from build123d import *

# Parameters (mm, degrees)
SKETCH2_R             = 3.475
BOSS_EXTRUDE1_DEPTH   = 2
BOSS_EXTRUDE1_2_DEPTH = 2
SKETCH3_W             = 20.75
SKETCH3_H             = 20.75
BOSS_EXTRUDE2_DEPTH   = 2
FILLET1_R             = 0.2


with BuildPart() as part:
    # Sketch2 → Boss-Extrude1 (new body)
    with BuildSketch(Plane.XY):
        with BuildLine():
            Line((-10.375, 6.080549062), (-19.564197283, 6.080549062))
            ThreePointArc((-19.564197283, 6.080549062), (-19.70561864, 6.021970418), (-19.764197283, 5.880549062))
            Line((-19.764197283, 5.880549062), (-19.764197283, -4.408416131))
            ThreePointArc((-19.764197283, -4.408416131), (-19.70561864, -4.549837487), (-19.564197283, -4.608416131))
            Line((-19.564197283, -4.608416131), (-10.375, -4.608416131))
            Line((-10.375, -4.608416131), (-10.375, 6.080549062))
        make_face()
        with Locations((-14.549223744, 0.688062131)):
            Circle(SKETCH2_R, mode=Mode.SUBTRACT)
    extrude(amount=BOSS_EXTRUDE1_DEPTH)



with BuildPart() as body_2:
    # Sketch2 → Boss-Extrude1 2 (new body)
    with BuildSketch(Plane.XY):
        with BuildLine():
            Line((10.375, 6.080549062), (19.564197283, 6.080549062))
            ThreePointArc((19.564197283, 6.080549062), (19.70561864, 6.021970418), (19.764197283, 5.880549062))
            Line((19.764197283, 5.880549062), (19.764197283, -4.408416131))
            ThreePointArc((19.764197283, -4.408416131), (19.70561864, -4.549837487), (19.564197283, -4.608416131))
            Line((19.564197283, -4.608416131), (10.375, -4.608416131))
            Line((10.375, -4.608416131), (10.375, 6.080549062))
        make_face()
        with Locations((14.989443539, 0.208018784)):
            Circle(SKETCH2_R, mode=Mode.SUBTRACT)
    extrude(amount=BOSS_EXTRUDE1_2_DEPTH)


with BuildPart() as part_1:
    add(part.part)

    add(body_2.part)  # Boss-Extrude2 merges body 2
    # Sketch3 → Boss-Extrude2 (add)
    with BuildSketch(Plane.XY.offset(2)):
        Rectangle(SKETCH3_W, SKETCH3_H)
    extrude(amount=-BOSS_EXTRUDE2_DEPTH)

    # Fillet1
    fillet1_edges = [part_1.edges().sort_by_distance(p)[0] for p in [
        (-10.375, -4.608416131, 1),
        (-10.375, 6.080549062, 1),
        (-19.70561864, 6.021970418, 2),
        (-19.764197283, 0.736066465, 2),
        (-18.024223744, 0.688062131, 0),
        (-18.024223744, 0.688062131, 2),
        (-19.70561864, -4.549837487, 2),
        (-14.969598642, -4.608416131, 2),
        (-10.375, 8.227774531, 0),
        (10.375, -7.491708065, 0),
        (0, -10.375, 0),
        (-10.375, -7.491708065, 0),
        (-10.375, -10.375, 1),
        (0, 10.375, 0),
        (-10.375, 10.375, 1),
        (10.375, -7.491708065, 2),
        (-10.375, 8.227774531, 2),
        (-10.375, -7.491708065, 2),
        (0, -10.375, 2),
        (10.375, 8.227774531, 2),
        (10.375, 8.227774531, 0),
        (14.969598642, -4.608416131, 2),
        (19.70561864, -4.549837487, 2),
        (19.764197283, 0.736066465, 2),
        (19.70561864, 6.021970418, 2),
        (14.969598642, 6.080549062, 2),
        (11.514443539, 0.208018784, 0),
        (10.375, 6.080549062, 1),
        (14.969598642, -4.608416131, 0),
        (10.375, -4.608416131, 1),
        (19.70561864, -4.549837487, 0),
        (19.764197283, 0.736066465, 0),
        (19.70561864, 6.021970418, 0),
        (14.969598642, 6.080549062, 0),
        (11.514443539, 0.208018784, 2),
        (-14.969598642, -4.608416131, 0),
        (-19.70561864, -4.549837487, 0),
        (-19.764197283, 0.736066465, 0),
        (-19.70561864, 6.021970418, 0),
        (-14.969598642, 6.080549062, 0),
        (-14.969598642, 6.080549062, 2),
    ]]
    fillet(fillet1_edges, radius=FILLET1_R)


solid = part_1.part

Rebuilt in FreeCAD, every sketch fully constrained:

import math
import FreeCAD as App
import Part
import Sketcher

V = App.Vector
Q = App.Units.Quantity


def edges_at(feature, points):
    """Names of the edges that pass closest to the given points."""
    edges = feature.Shape.Edges
    near = lambda p: min(range(len(edges)), key=lambda i: edges[i].distToShape(Part.Vertex(*p))[0])
    return sorted({f"Edge{near(p) + 1}" for p in points})

doc = App.newDocument("Part")
body = doc.addObject("PartDesign::Body", "Body")

# Sketch on XY plane
sketch1 = doc.addObject("Sketcher::SketchObject", "Sketch")
body.addObject(sketch1)
sketch1.AttachmentSupport = (doc.XY_Plane, [""])
sketch1.MapMode = "FlatFace"
sketch1.addGeometry([
    Part.LineSegment(V(-10.375, 6.080549, 0), V(-19.564197, 6.080549, 0)),  # 0
    Part.ArcOfCircle(Part.Circle(V(-19.564197, 5.880549, 0), V(0, 0, 1), 0.2), math.radians(90), math.radians(180)),  # 1
    Part.LineSegment(V(-19.764197, 5.880549, 0), V(-19.764197, -4.408416, 0)),  # 2
    Part.ArcOfCircle(Part.Circle(V(-19.564197, -4.408416, 0), V(0, 0, 1), 0.2), math.radians(180), math.radians(270)),  # 3
    Part.LineSegment(V(-19.564197, -4.608416, 0), V(-10.375, -4.608416, 0)),  # 4
    Part.LineSegment(V(-10.375, -4.608416, 0), V(-10.375, 6.080549, 0)),  # 5
    Part.Circle(V(-14.549224, 0.688062, 0), V(0, 0, 1), 3.475),  # 6
], False)
sketch1.addConstraint([
    Sketcher.Constraint("Tangent", 0, 2, 1, 1),
    Sketcher.Constraint("Tangent", 1, 2, 2, 1),
    Sketcher.Constraint("Tangent", 2, 2, 3, 1),
    Sketcher.Constraint("Tangent", 3, 2, 4, 1),
    Sketcher.Constraint("Coincident", 4, 2, 5, 1),
    Sketcher.Constraint("Coincident", 5, 2, 0, 1),
    Sketcher.Constraint("Horizontal", 0),
    Sketcher.Constraint("Vertical", 2),
    Sketcher.Constraint("Horizontal", 4),
    Sketcher.Constraint("Vertical", 5),
    Sketcher.Constraint("Equal", 1, 3),
    Sketcher.Constraint("Radius", 1, Q("0.2 mm")),
    Sketcher.Constraint("Diameter", 6, Q("6.95 mm")),
    Sketcher.Constraint("DistanceX", 4, 2, -1, 1, Q("10.375 mm")),
    Sketcher.Constraint("DistanceX", 0, 2, 0, 1, Q("9.189197 mm")),
    Sketcher.Constraint("DistanceY", 2, 2, 2, 1, Q("10.288965 mm")),
    Sketcher.Constraint("DistanceY", -1, 1, 1, 3, Q("5.880549 mm")),
    Sketcher.Constraint("DistanceY", 3, 3, 6, 3, Q("5.096478 mm")),
    Sketcher.Constraint("DistanceX", 6, 3, -1, 1, Q("14.549224 mm")),
])
pad1 = doc.addObject("PartDesign::Pad", "Pad")
body.addObject(pad1)
pad1.Profile = sketch1
pad1.Length = 2
body2 = doc.addObject("PartDesign::Body", "Body001")

# Sketch on XY plane
sketch2 = doc.addObject("Sketcher::SketchObject", "Sketch001")
body2.addObject(sketch2)
sketch2.AttachmentSupport = (doc.getObject("XY_Plane001"), [""])
sketch2.MapMode = "FlatFace"
sketch2.addGeometry([
    Part.LineSegment(V(19.564197, 6.080549, 0), V(10.375, 6.080549, 0)),  # 0
    Part.LineSegment(V(10.375, 6.080549, 0), V(10.375, -4.608416, 0)),  # 1
    Part.LineSegment(V(10.375, -4.608416, 0), V(19.564197, -4.608416, 0)),  # 2
    Part.ArcOfCircle(Part.Circle(V(19.564197, -4.408416, 0), V(0, 0, 1), 0.2), math.radians(-90), math.radians(0)),  # 3
    Part.LineSegment(V(19.764197, -4.408416, 0), V(19.764197, 5.880549, 0)),  # 4
    Part.ArcOfCircle(Part.Circle(V(19.564197, 5.880549, 0), V(0, 0, 1), 0.2), math.radians(0), math.radians(90)),  # 5
    Part.Circle(V(14.989444, 0.208019, 0), V(0, 0, 1), 3.475),  # 6
], False)
sketch2.addConstraint([
    Sketcher.Constraint("Coincident", 0, 2, 1, 1),
    Sketcher.Constraint("Coincident", 1, 2, 2, 1),
    Sketcher.Constraint("Tangent", 2, 2, 3, 1),
    Sketcher.Constraint("Tangent", 3, 2, 4, 1),
    Sketcher.Constraint("Tangent", 4, 2, 5, 1),
    Sketcher.Constraint("Tangent", 5, 2, 0, 1),
    Sketcher.Constraint("Horizontal", 0),
    Sketcher.Constraint("Vertical", 1),
    Sketcher.Constraint("Horizontal", 2),
    Sketcher.Constraint("Vertical", 4),
    Sketcher.Constraint("Equal", 3, 5),
    Sketcher.Constraint("Radius", 3, Q("0.2 mm")),
    Sketcher.Constraint("Diameter", 6, Q("6.95 mm")),
    Sketcher.Constraint("DistanceX", -1, 1, 0, 2, Q("10.375 mm")),
    Sketcher.Constraint("DistanceX", 0, 2, 0, 1, Q("9.189197 mm")),
    Sketcher.Constraint("DistanceY", 1, 2, 1, 1, Q("10.688965 mm")),
    Sketcher.Constraint("DistanceY", -1, 1, 5, 3, Q("5.880549 mm")),
    Sketcher.Constraint("DistanceY", -1, 1, 6, 3, Q("0.208019 mm")),
    Sketcher.Constraint("DistanceX", -1, 1, 6, 3, Q("14.989444 mm")),
])
pad2 = doc.addObject("PartDesign::Pad", "Pad001")
body2.addObject(pad2)
pad2.Profile = sketch2
pad2.Length = 2
body.AllowCompound = True
doc.recompute()

boolean = doc.addObject("PartDesign::Boolean", "Boolean")
body.addObject(boolean)
boolean.Type = "Fuse"
boolean.addObjects([body2])

# Sketch on XY plane
sketch3 = doc.addObject("Sketcher::SketchObject", "Sketch002")
body.addObject(sketch3)
sketch3.AttachmentSupport = (doc.XY_Plane, [""])
sketch3.MapMode = "FlatFace"
sketch3.AttachmentOffset = App.Placement(V(0, 0, 2), App.Rotation())
sketch3.addGeometry([
    Part.LineSegment(V(-10.375, 10.375, 0), V(-10.375, -10.375, 0)),
    Part.LineSegment(V(-10.375, -10.375, 0), V(10.375, -10.375, 0)),
    Part.LineSegment(V(10.375, -10.375, 0), V(10.375, 10.375, 0)),
    Part.LineSegment(V(10.375, 10.375, 0), V(-10.375, 10.375, 0)),
], False)
sketch3.addConstraint([
    Sketcher.Constraint("Coincident", 0, 2, 1, 1),
    Sketcher.Constraint("Coincident", 1, 2, 2, 1),
    Sketcher.Constraint("Coincident", 2, 2, 3, 1),
    Sketcher.Constraint("Coincident", 3, 2, 0, 1),
    Sketcher.Constraint("Vertical", 0),
    Sketcher.Constraint("Horizontal", 1),
    Sketcher.Constraint("Vertical", 2),
    Sketcher.Constraint("Horizontal", 3),
    Sketcher.Constraint("Symmetric", 0, 2, 2, 2, -1, 1),
    Sketcher.Constraint("Equal", 3, 0),
    Sketcher.Constraint("DistanceX", 1, 1, 1, 2, Q("20.75 mm")),
])
pad3 = doc.addObject("PartDesign::Pad", "Pad002")
body.addObject(pad3)
pad3.Profile = sketch3
pad3.Length = 2
pad3.Reversed = True
doc.recompute()

fillet = doc.addObject("PartDesign::Fillet", "Fillet")
body.addObject(fillet)
fillet.Base = (pad3, edges_at(pad3, [
    (-10.375, -4.608, 1),
    (-10.375, 6.081, 1),
    (-19.706, 6.022, 2),
    (-19.764, 0.736, 2),
    (-18.024, 0.688, 0),
    (-18.024, 0.688, 2),
    (-19.706, -4.55, 2),
    (-14.97, -4.608, 2),
    (-10.375, 8.228, 0),
    (10.375, -7.492, 0),
    (0, -10.375, 0),
    (-10.375, -7.492, 0),
    (-10.375, -10.375, 1),
    (0, 10.375, 0),
    (-10.375, 10.375, 1),
    (10.375, -7.492, 2),
    (-10.375, 8.228, 2),
    (-10.375, -7.492, 2),
    (0, -10.375, 2),
    (10.375, 8.228, 2),
    (10.375, 8.228, 0),
    (14.97, -4.608, 2),
    (19.706, -4.55, 2),
    (19.764, 0.736, 2),
    (19.706, 6.022, 2),
    (14.97, 6.081, 2),
    (11.514, 0.208, 0),
    (10.375, 6.081, 1),
    (14.97, -4.608, 0),
    (10.375, -4.608, 1),
    (19.706, -4.55, 0),
    (19.764, 0.736, 0),
    (19.706, 6.022, 0),
    (14.97, 6.081, 0),
    (11.514, 0.208, 2),
    (-14.97, -4.608, 0),
    (-19.706, -4.55, 0),
    (-19.764, 0.736, 0),
    (-19.706, 6.022, 0),
    (-14.97, 6.081, 0),
    (-14.97, 6.081, 2),
]))
fillet.Radius = 0.2

doc.recompute()
